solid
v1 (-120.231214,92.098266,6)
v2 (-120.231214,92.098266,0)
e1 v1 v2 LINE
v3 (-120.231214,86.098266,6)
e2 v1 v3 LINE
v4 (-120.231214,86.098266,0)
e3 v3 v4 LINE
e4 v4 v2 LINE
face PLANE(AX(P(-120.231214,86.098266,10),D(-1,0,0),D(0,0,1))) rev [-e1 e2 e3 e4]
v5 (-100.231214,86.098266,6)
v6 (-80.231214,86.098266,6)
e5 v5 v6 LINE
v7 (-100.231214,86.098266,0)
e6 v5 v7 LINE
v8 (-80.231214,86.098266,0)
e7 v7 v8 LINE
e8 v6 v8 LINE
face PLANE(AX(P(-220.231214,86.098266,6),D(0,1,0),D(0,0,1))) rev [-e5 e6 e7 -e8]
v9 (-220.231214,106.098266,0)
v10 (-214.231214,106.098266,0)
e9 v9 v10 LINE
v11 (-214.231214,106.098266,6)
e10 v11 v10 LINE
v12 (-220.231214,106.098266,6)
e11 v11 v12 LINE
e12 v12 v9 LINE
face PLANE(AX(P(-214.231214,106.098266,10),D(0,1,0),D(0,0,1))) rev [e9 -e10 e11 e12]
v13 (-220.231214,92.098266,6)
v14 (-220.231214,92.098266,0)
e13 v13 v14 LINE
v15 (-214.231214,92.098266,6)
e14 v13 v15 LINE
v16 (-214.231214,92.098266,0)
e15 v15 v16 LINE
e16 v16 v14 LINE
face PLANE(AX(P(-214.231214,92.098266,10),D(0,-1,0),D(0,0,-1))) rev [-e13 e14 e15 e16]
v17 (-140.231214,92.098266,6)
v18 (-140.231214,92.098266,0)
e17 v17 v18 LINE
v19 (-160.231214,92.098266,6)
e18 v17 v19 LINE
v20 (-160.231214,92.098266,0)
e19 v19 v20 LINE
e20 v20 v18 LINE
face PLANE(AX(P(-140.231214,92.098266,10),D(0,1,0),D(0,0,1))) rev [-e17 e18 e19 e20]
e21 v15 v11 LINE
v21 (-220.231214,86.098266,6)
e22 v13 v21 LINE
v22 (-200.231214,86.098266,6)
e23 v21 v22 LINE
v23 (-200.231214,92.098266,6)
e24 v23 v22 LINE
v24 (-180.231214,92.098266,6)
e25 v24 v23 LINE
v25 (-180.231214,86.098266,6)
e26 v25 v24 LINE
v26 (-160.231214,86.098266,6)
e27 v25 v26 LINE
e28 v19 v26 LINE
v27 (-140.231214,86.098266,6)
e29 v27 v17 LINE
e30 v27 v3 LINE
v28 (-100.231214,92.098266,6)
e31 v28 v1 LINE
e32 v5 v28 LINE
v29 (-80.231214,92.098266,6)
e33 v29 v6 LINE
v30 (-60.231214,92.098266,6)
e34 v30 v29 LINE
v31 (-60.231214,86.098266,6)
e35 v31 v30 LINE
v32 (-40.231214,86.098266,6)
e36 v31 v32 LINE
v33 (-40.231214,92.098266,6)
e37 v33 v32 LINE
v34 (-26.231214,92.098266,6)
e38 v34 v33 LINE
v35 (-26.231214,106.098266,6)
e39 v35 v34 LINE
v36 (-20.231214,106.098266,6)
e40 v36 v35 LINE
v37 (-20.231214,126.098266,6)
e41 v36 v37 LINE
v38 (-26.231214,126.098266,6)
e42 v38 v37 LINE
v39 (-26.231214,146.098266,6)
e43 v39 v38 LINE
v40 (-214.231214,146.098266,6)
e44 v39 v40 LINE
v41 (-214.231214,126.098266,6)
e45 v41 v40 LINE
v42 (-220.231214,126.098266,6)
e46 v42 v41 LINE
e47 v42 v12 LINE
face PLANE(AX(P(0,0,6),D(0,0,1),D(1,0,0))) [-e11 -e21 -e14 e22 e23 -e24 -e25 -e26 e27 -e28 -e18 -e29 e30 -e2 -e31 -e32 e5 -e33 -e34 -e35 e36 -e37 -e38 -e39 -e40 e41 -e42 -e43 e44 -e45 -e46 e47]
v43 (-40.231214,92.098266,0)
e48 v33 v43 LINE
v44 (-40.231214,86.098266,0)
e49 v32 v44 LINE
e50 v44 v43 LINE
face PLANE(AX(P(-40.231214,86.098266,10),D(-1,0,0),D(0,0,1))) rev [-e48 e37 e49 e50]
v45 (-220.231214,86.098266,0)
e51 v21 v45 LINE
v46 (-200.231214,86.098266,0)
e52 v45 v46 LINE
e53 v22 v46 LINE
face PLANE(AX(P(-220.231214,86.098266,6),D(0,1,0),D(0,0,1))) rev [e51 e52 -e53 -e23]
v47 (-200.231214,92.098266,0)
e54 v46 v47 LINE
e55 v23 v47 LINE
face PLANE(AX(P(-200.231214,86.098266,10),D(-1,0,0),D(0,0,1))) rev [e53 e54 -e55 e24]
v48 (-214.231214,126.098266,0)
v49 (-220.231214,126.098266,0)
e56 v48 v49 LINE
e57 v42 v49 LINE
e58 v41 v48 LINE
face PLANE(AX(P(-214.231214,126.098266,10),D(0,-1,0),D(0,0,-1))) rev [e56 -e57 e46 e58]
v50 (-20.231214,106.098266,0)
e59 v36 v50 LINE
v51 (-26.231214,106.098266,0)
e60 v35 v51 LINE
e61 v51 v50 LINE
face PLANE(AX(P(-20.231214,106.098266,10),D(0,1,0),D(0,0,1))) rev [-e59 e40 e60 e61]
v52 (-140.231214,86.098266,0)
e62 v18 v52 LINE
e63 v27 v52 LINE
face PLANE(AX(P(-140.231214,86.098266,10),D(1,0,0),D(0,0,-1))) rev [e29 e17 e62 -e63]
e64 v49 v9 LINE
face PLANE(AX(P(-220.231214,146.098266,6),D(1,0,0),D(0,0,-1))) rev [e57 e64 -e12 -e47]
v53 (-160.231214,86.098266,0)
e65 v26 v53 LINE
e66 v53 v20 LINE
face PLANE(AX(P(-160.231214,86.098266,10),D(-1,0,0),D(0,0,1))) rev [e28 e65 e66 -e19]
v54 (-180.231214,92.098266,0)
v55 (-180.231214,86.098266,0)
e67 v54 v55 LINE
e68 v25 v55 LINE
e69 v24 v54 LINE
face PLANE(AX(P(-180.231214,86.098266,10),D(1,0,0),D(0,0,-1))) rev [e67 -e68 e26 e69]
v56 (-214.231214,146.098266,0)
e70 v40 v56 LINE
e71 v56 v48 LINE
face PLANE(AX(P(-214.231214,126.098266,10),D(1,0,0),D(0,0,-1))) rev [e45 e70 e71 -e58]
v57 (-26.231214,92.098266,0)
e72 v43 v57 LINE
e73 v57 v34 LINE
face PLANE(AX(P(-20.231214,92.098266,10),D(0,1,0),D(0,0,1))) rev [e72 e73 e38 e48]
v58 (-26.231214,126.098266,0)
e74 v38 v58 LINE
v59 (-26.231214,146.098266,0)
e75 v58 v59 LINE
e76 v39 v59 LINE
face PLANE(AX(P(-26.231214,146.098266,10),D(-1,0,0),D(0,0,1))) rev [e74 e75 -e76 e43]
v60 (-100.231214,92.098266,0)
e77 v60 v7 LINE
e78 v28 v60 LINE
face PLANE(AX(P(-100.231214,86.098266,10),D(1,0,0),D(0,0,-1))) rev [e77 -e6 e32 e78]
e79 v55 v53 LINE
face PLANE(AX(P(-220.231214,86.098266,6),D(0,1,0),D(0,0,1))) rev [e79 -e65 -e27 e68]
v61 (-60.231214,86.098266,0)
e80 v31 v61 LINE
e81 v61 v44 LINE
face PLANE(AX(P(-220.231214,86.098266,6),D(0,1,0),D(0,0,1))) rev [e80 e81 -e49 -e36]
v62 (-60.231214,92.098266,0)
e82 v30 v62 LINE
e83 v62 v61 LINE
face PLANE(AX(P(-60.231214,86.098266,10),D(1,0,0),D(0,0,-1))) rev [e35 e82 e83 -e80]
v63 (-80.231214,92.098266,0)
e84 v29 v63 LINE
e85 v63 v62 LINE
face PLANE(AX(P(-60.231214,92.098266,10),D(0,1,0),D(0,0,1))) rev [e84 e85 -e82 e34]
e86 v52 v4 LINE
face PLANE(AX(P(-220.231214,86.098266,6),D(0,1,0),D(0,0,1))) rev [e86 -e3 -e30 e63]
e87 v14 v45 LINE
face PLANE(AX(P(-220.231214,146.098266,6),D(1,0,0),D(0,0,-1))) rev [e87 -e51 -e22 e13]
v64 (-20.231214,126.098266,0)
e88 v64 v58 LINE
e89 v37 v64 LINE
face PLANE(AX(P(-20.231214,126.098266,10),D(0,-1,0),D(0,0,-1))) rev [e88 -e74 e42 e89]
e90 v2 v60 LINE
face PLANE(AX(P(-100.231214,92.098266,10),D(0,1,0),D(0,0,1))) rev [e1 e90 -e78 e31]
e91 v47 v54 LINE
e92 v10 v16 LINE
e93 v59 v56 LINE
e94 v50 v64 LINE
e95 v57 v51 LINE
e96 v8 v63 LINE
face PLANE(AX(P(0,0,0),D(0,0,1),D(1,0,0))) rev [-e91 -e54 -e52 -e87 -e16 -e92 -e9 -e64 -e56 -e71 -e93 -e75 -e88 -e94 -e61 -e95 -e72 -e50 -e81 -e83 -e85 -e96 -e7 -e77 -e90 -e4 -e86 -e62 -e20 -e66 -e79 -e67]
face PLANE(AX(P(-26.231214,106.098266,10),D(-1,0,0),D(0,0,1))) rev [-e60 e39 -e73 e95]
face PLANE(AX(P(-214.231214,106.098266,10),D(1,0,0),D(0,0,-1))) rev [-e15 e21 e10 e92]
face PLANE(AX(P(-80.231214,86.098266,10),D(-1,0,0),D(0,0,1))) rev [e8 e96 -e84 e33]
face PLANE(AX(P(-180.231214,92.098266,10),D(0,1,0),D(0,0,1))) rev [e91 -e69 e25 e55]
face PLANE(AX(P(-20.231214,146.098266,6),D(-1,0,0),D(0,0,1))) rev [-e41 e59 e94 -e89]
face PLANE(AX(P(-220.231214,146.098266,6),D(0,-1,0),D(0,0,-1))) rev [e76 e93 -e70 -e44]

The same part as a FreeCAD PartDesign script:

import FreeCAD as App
import Part
import Sketcher
Q = App.Units.Quantity

doc = App.newDocument("Part")
params = doc.addObject("Spreadsheet::Sheet", "Params")
for row, (alias, value) in enumerate([
    ("sketch1_width", "200 mm"),
    ("sketch1_height", "60 mm"),
    ("pad1_length", "6 mm"),
    ("sketch2_width", "20 mm"),
    ("sketch2_height", "6 mm"),
    ("pocket1_length", "10 mm"),
    ("linearpattern_pitch", "40 mm"),
    ("sketch3_width", "6 mm"),
    ("sketch3_height", "20 mm"),
    ("pocket2_length", "10 mm"),
    ("sketch4_width", "6 mm"),
    ("sketch4_height", "20 mm"),
    ("pocket3_length", "10 mm"),
    ("sketch5_width", "6 mm"),
    ("sketch5_height", "14 mm"),
    ("pocket4_length", "10 mm"),
    ("sketch6_width", "6 mm"),
    ("sketch6_height", "14 mm"),
    ("pocket5_length", "10 mm"),
], start=1):
    params.set(f"A{row}", alias)
    params.set(f"B{row}", "=" + value)
    params.setAlias(f"B{row}", alias)

body = doc.addObject("PartDesign::Body", "Body")

# Sketch on XY plane
sketch1 = body.newObject("Sketcher::SketchObject", "Sketch")
sketch1.AttachmentSupport = (doc.getObject("XY_Plane"), [""])
sketch1.MapMode = "FlatFace"
sketch1.addGeometry([
    Part.LineSegment(App.Vector(-220, 146, 0), App.Vector(-220, 86, 0)),
    Part.LineSegment(App.Vector(-220, 86, 0), App.Vector(-20, 86, 0)),
    Part.LineSegment(App.Vector(-20, 86, 0), App.Vector(-20, 146, 0)),
    Part.LineSegment(App.Vector(-20, 146, 0), App.Vector(-220, 146, 0)),
], False)
sketch1.addConstraint([
    Sketcher.Constraint("Coincident", 0, 2, 1, 1),
    Sketcher.Constraint("Coincident", 1, 2, 2, 1),
    Sketcher.Constraint("Coincident", 2, 2, 3, 1),
    Sketcher.Constraint("Coincident", 3, 2, 0, 1),
    Sketcher.Constraint("Vertical", 0),
    Sketcher.Constraint("Horizontal", 1),
    Sketcher.Constraint("Vertical", 2),
    Sketcher.Constraint("Horizontal", 3),
    Sketcher.Constraint("DistanceX", 1, 1, 1, 2, Q("200 mm")),
    Sketcher.Constraint("DistanceY", 0, 2, 0, 1, Q("60 mm")),
    Sketcher.Constraint("DistanceX", 0, 2, -1, 1, Q("220.231214 mm")),
    Sketcher.Constraint("DistanceY", -1, 1, 0, 2, Q("86.098266 mm")),
])
sketch1.setExpression("Constraints[8]", "Params.sketch1_width")
sketch1.setExpression("Constraints[9]", "Params.sketch1_height")
pad1 = body.newObject("PartDesign::Pad", "Pad")
pad1.Profile = sketch1
pad1.setExpression("Length", "Params.pad1_length")

# Sketch on XY plane
sketch2 = body.newObject("Sketcher::SketchObject", "Sketch001")
sketch2.AttachmentSupport = (doc.getObject("XY_Plane"), [""])
sketch2.MapMode = "FlatFace"
sketch2.addGeometry([
    Part.LineSegment(App.Vector(-20, 92, 0), App.Vector(-20, 86, 0)),
    Part.LineSegment(App.Vector(-20, 86, 0), App.Vector(-40, 86, 0)),
    Part.LineSegment(App.Vector(-40, 86, 0), App.Vector(-40, 92, 0)),
    Part.LineSegment(App.Vector(-40, 92, 0), App.Vector(-20, 92, 0)),
], False)
sketch2.addConstraint([
    Sketcher.Constraint("Coincident", 0, 2, 1, 1),
    Sketcher.Constraint("Coincident", 1, 2, 2, 1),
    Sketcher.Constraint("Coincident", 2, 2, 3, 1),
    Sketcher.Constraint("Coincident", 3, 2, 0, 1),
    Sketcher.Constraint("Vertical", 0),
    Sketcher.Constraint("Horizontal", 1),
    Sketcher.Constraint("Vertical", 2),
    Sketcher.Constraint("Horizontal", 3),
    Sketcher.Constraint("DistanceX", 1, 2, 1, 1, Q("20 mm")),
    Sketcher.Constraint("DistanceY", 0, 2, 0, 1, Q("6 mm")),
    Sketcher.Constraint("DistanceX", 0, 2, -1, 1, Q("20.231214 mm")),
    Sketcher.Constraint("DistanceY", -1, 1, 0, 2, Q("86.098266 mm")),
])
sketch2.setExpression("Constraints[8]", "Params.sketch2_width")
sketch2.setExpression("Constraints[9]", "Params.sketch2_height")
pocket1 = body.newObject("PartDesign::Pocket", "Pocket")
pocket1.Profile = sketch2
pocket1.setExpression("Length", "Params.pocket1_length")
pocket1.Reversed = True
doc.recompute()

linearpattern = body.newObject("PartDesign::LinearPattern", "LinearPattern")
linearpattern.Originals = [pocket1]
linearpattern.Direction = (doc.getObject("X_Axis"), [""])
linearpattern.Mode = "offset"
linearpattern.setExpression("Offset", "Params.linearpattern_pitch")
linearpattern.Occurrences = 5
linearpattern.Reversed = True
body.Tip = linearpattern

# Sketch on XY plane
sketch3 = body.newObject("Sketcher::SketchObject", "Sketch002")
sketch3.AttachmentSupport = (doc.getObject("XY_Plane"), [""])
sketch3.MapMode = "FlatFace"
sketch3.addGeometry([
    Part.LineSegment(App.Vector(-214, 146, 0), App.Vector(-214, 126, 0)),
    Part.LineSegment(App.Vector(-214, 126, 0), App.Vector(-220, 126, 0)),
    Part.LineSegment(App.Vector(-220, 126, 0), App.Vector(-220, 146, 0)),
    Part.LineSegment(App.Vector(-220, 146, 0), App.Vector(-214, 146, 0)),
], False)
sketch3.addConstraint([
    Sketcher.Constraint("Coincident", 0, 2, 1, 1),
    Sketcher.Constraint("Coincident", 1, 2, 2, 1),
    Sketcher.Constraint("Coincident", 2, 2, 3, 1),
    Sketcher.Constraint("Coincident", 3, 2, 0, 1),
    Sketcher.Constraint("Vertical", 0),
    Sketcher.Constraint("Horizontal", 1),
    Sketcher.Constraint("Vertical", 2),
    Sketcher.Constraint("Horizontal", 3),
    Sketcher.Constraint("DistanceX", 1, 2, 1, 1, Q("6 mm")),
    Sketcher.Constraint("DistanceY", 0, 2, 0, 1, Q("20 mm")),
    Sketcher.Constraint("DistanceX", 0, 2, -1, 1, Q("214.231214 mm")),
    Sketcher.Constraint("DistanceY", -1, 1, 0, 2, Q("126.098266 mm")),
])
sketch3.setExpression("Constraints[8]", "Params.sketch3_width")
sketch3.setExpression("Constraints[9]", "Params.sketch3_height")
pocket2 = body.newObject("PartDesign::Pocket", "Pocket001")
pocket2.Profile = sketch3
pocket2.setExpression("Length", "Params.pocket2_length")
pocket2.Reversed = True

# Sketch on XY plane
sketch4 = body.newObject("Sketcher::SketchObject", "Sketch003")
sketch4.AttachmentSupport = (doc.getObject("XY_Plane"), [""])
sketch4.MapMode = "FlatFace"
sketch4.addGeometry([
    Part.LineSegment(App.Vector(-20, 146, 0), App.Vector(-20, 126, 0)),
    Part.LineSegment(App.Vector(-20, 126, 0), App.Vector(-26, 126, 0)),
    Part.LineSegment(App.Vector(-26, 126, 0), App.Vector(-26, 146, 0)),
    Part.LineSegment(App.Vector(-26, 146, 0), App.Vector(-20, 146, 0)),
], False)
sketch4.addConstraint([
    Sketcher.Constraint("Coincident", 0, 2, 1, 1),
    Sketcher.Constraint("Coincident", 1, 2, 2, 1),
    Sketcher.Constraint("Coincident", 2, 2, 3, 1),
    Sketcher.Constraint("Coincident", 3, 2, 0, 1),
    Sketcher.Constraint("Vertical", 0),
    Sketcher.Constraint("Horizontal", 1),
    Sketcher.Constraint("Vertical", 2),
    Sketcher.Constraint("Horizontal", 3),
    Sketcher.Constraint("DistanceX", 1, 2, 1, 1, Q("6 mm")),
    Sketcher.Constraint("DistanceY", 0, 2, 0, 1, Q("20 mm")),
    Sketcher.Constraint("DistanceX", 0, 2, -1, 1, Q("20.231214 mm")),
    Sketcher.Constraint("DistanceY", -1, 1, 0, 2, Q("126.098266 mm")),
])
sketch4.setExpression("Constraints[8]", "Params.sketch4_width")
sketch4.setExpression("Constraints[9]", "Params.sketch4_height")
pocket3 = body.newObject("PartDesign::Pocket", "Pocket002")
pocket3.Profile = sketch4
pocket3.setExpression("Length", "Params.pocket3_length")
pocket3.Reversed = True

# Sketch on XY plane
sketch5 = body.newObject("Sketcher::SketchObject", "Sketch004")
sketch5.AttachmentSupport = (doc.getObject("XY_Plane"), [""])
sketch5.MapMode = "FlatFace"
sketch5.addGeometry([
    Part.LineSegment(App.Vector(-214, 106, 0), App.Vector(-214, 92, 0)),
    Part.LineSegment(App.Vector(-214, 92, 0), App.Vector(-220, 92, 0)),
    Part.LineSegment(App.Vector(-220, 92, 0), App.Vector(-220, 106, 0)),
    Part.LineSegment(App.Vector(-220, 106, 0), App.Vector(-214, 106, 0)),
], False)
sketch5.addConstraint([
    Sketcher.Constraint("Coincident", 0, 2, 1, 1),
    Sketcher.Constraint("Coincident", 1, 2, 2, 1),
    Sketcher.Constraint("Coincident", 2, 2, 3, 1),
    Sketcher.Constraint("Coincident", 3, 2, 0, 1),
    Sketcher.Constraint("Vertical", 0),
    Sketcher.Constraint("Horizontal", 1),
    Sketcher.Constraint("Vertical", 2),
    Sketcher.Constraint("Horizontal", 3),
    Sketcher.Constraint("DistanceX", 1, 2, 1, 1, Q("6 mm")),
    Sketcher.Constraint("DistanceY", 0, 2, 0, 1, Q("14 mm")),
    Sketcher.Constraint("DistanceX", 0, 2, -1, 1, Q("214.231214 mm")),
    Sketcher.Constraint("DistanceY", -1, 1, 0, 2, Q("92.098266 mm")),
])
sketch5.setExpression("Constraints[8]", "Params.sketch5_width")
sketch5.setExpression("Constraints[9]", "Params.sketch5_height")
pocket4 = body.newObject("PartDesign::Pocket", "Pocket003")
pocket4.Profile = sketch5
pocket4.setExpression("Length", "Params.pocket4_length")
pocket4.Reversed = True

# Sketch on XY plane
sketch6 = body.newObject("Sketcher::SketchObject", "Sketch005")
sketch6.AttachmentSupport = (doc.getObject("XY_Plane"), [""])
sketch6.MapMode = "FlatFace"
sketch6.addGeometry([
    Part.LineSegment(App.Vector(-20, 106, 0), App.Vector(-20, 92, 0)),
    Part.LineSegment(App.Vector(-20, 92, 0), App.Vector(-26, 92, 0)),
    Part.LineSegment(App.Vector(-26, 92, 0), App.Vector(-26, 106, 0)),
    Part.LineSegment(App.Vector(-26, 106, 0), App.Vector(-20, 106, 0)),
], False)
sketch6.addConstraint([
    Sketcher.Constraint("Coincident", 0, 2, 1, 1),
    Sketcher.Constraint("Coincident", 1, 2, 2, 1),
    Sketcher.Constraint("Coincident", 2, 2, 3, 1),
    Sketcher.Constraint("Coincident", 3, 2, 0, 1),
    Sketcher.Constraint("Vertical", 0),
    Sketcher.Constraint("Horizontal", 1),
    Sketcher.Constraint("Vertical", 2),
    Sketcher.Constraint("Horizontal", 3),
    Sketcher.Constraint("DistanceX", 1, 2, 1, 1, Q("6 mm")),
    Sketcher.Constraint("DistanceY", 0, 2, 0, 1, Q("14 mm")),
    Sketcher.Constraint("DistanceX", 0, 2, -1, 1, Q("20.231214 mm")),
    Sketcher.Constraint("DistanceY", -1, 1, 0, 2, Q("92.098266 mm")),
])
sketch6.setExpression("Constraints[8]", "Params.sketch6_width")
sketch6.setExpression("Constraints[9]", "Params.sketch6_height")
pocket5 = body.newObject("PartDesign::Pocket", "Pocket004")
pocket5.Profile = sketch6
pocket5.setExpression("Length", "Params.pocket5_length")
pocket5.Reversed = True

doc.recompute()
